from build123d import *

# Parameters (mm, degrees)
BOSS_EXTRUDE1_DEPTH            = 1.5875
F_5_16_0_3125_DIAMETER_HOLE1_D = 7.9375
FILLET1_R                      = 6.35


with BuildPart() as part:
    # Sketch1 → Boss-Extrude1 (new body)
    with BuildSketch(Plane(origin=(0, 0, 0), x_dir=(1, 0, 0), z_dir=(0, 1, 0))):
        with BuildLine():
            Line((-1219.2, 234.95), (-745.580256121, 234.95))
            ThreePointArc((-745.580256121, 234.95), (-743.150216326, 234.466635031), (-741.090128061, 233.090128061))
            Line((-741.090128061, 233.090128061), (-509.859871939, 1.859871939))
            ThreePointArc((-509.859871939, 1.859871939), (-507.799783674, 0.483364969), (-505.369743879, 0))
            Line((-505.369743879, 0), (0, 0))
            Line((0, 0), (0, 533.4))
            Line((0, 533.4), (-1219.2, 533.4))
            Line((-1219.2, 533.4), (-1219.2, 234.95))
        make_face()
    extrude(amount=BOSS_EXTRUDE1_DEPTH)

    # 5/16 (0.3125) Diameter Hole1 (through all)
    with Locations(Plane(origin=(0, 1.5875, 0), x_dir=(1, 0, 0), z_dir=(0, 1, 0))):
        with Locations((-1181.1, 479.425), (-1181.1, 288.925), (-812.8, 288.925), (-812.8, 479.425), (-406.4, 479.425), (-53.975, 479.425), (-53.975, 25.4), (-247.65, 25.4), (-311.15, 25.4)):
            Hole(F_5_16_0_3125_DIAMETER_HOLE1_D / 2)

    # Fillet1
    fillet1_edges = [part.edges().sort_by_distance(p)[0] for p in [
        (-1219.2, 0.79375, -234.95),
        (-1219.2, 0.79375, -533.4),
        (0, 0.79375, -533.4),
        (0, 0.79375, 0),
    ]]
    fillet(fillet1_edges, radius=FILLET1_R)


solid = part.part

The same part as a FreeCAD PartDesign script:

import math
import FreeCAD as App
import Part
import Sketcher
from FreeCAD import Vector
Q = App.Units.Quantity


def edges_at(feature, points):
    """Names of the edges that pass closest to the given points."""
    edges = feature.Shape.Edges
    near = lambda p: min(range(len(edges)), key=lambda i: edges[i].distToShape(Part.Vertex(*p))[0])
    return sorted({f"Edge{near(p) + 1}" for p in points})

doc = App.newDocument("Part")
params = doc.addObject("Spreadsheet::Sheet", "Params")
for row, (alias, value) in enumerate([
    ("sketch1_width", "48 in"),
    ("sketch1_height", "21 in"),
    ("sketch1_radius", "0.25 in"),
    ("pad1_length", "0.0625 in"),
    ("sketch2_diameter", "0.3125 in"),
    ("hole_diameter", "0.3125 in"),
    ("fillet_radius", "0.25 in"),
], start=1):
    params.set(f"A{row}", alias)
    params.set(f"B{row}", "=" + value)
    params.setAlias(f"B{row}", alias)

body = doc.addObject("PartDesign::Body", "Body")

# Sketch on XZ plane
sketch1 = doc.addObject("Sketcher::SketchObject", "Sketch")
body.addObject(sketch1)
sketch1.AttachmentSupport = (doc.XZ_Plane, [""])
sketch1.MapMode = "FlatFace"
sketch1.addGeometry(Part.LineSegment(Vector(-1219.2, -234.95, 0), Vector(-745.580256, -234.95, 0)), False)
sketch1.addGeometry(Part.ArcOfCircle(Part.Circle(Vector(-745.580256, -228.6, 0), Vector(0, 0, 1), 6.35), math.radians(-90), math.radians(-45)), False)
sketch1.addGeometry(Part.LineSegment(Vector(-741.090128, -233.090128, 0), Vector(-509.859872, -1.859872, 0)), False)
sketch1.addGeometry(Part.ArcOfCircle(Part.Circle(Vector(-505.369744, -6.35, 0), Vector(0, 0, 1), 6.35), math.radians(90), math.radians(135)), False)
sketch1.addGeometry(Part.LineSegment(Vector(-505.369744, 0, 0), Vector(0, 0, 0)), False)
sketch1.addGeometry(Part.LineSegment(Vector(0, 0, 0), Vector(0, -533.4, 0)), False)
sketch1.addGeometry(Part.LineSegment(Vector(0, -533.4, 0), Vector(-1219.2, -533.4, 0)), False)
sketch1.addGeometry(Part.LineSegment(Vector(-1219.2, -533.4, 0), Vector(-1219.2, -234.95, 0)), False)
sketch1.addConstraint(Sketcher.Constraint("Tangent", 0, 2, 1, 1))
sketch1.addConstraint(Sketcher.Constraint("Tangent", 1, 2, 2, 1))
sketch1.addConstraint(Sketcher.Constraint("Tangent", 2, 2, 3, 2))
sketch1.addConstraint(Sketcher.Constraint("Tangent", 3, 1, 4, 1))
sketch1.addConstraint(Sketcher.Constraint("Coincident", 4, 2, 5, 1))
sketch1.addConstraint(Sketcher.Constraint("Coincident", 5, 2, 6, 1))
sketch1.addConstraint(Sketcher.Constraint("Coincident", 6, 2, 7, 1))
sketch1.addConstraint(Sketcher.Constraint("Coincident", 7, 2, 0, 1))
sketch1.addConstraint(Sketcher.Constraint("Horizontal", 0))
sketch1.addConstraint(Sketcher.Constraint("Horizontal", 4))
sketch1.addConstraint(Sketcher.Constraint("Vertical", 5))
sketch1.addConstraint(Sketcher.Constraint("Horizontal", 6))
sketch1.addConstraint(Sketcher.Constraint("Vertical", 7))
sketch1.addConstraint(Sketcher.Constraint("Coincident", 4, 2, -1, 1))
sketch1.addConstraint(Sketcher.Constraint("Equal", 1, 3))
sketch1.addConstraint(Sketcher.Constraint("DistanceX", 6, 2, 6, 1, Q("48 in")))
sketch1.addConstraint(Sketcher.Constraint("DistanceY", 5, 2, 5, 1, Q("21 in")))
sketch1.addConstraint(Sketcher.Constraint("Radius", 1, Q("0.25 in")))
sketch1.addConstraint(Sketcher.Constraint("DistanceY", 1, 3, -1, 1, Q("9 in")))
sketch1.addConstraint(Sketcher.Constraint("Angle", 2, Q("45 deg")))
sketch1.addConstraint(Sketcher.Constraint("DistanceX", 0, 1, 0, 2, Q("473.619744 mm")))
sketch1.setExpression("Constraints[15]", "Params.sketch1_width")
sketch1.setExpression("Constraints[16]", "Params.sketch1_height")
sketch1.setExpression("Constraints[17]", "Params.sketch1_radius")
pad1 = doc.addObject("PartDesign::Pad", "Pad")
body.addObject(pad1)
pad1.Profile = sketch1
pad1.setExpression("Length", "Params.pad1_length")
pad1.Reversed = True

# Sketch on XZ plane
sketch2 = doc.addObject("Sketcher::SketchObject", "Sketch001")
body.addObject(sketch2)
sketch2.AttachmentSupport = (doc.XZ_Plane, [""])
sketch2.MapMode = "FlatFace"
sketch2.AttachmentOffset = App.Placement(Vector(0, 0, -0.0625 * 25.4), App.Rotation())
sketch2.addGeometry(Part.Circle(Vector(-1181.1, -479.425, 0), Vector(0, 0, 1), 3.96875), False)
sketch2.addGeometry(Part.Circle(Vector(-1181.1, -288.925, 0), Vector(0, 0, 1), 3.96875), False)
sketch2.addGeometry(Part.Circle(Vector(-812.8, -288.925, 0), Vector(0, 0, 1), 3.96875), False)
sketch2.addGeometry(Part.Circle(Vector(-812.8, -479.425, 0), Vector(0, 0, 1), 3.96875), False)
sketch2.addGeometry(Part.Circle(Vector(-406.4, -479.425, 0), Vector(0, 0, 1), 3.96875), False)
sketch2.addGeometry(Part.Circle(Vector(-53.975, -479.425, 0), Vector(0, 0, 1), 3.96875), False)
sketch2.addGeometry(Part.Circle(Vector(-53.975, -25.4, 0), Vector(0, 0, 1), 3.96875), False)
sketch2.addGeometry(Part.Circle(Vector(-247.65, -25.4, 0), Vector(0, 0, 1), 3.96875), False)
sketch2.addGeometry(Part.Circle(Vector(-311.15, -25.4, 0), Vector(0, 0, 1), 3.96875), False)
sketch2.addConstraint(Sketcher.Constraint("Equal", 0, 1))
sketch2.addConstraint(Sketcher.Constraint("Equal", 1, 2))
sketch2.addConstraint(Sketcher.Constraint("Equal", 2, 3))
sketch2.addConstraint(Sketcher.Constraint("Equal", 3, 4))
sketch2.addConstraint(Sketcher.Constraint("Equal", 4, 5))
sketch2.addConstraint(Sketcher.Constraint("Equal", 5, 6))
sketch2.addConstraint(Sketcher.Constraint("Equal", 6, 7))
sketch2.addConstraint(Sketcher.Constraint("Equal", 7, 8))
sketch2.addConstraint(Sketcher.Constraint("Horizontal", 1, 3, 2, 3))
sketch2.addConstraint(Sketcher.Constraint("Horizontal", 0, 3, 3, 3))
sketch2.addConstraint(Sketcher.Constraint("Horizontal", 3, 3, 4, 3))
sketch2.addConstraint(Sketcher.Constraint("Horizontal", 4, 3, 5, 3))
sketch2.addConstraint(Sketcher.Constraint("Horizontal", 6, 3, 7, 3))
sketch2.addConstraint(Sketcher.Constraint("Horizontal", 7, 3, 8, 3))
sketch2.addConstraint(Sketcher.Constraint("Vertical", 0, 3, 1, 3))
sketch2.addConstraint(Sketcher.Constraint("Vertical", 2, 3, 3, 3))
sketch2.addConstraint(Sketcher.Constraint("Vertical", 5, 3, 6, 3))
sketch2.addConstraint(Sketcher.Constraint("Diameter", 0, Q("0.3125 in")))
sketch2.addConstraint(Sketcher.Constraint("DistanceX", 2, 3, -1, 1, Q("32 in")))
sketch2.addConstraint(Sketcher.Constraint("DistanceX", 4, 3, -1, 1, Q("16 in")))
sketch2.addConstraint(Sketcher.Constraint("DistanceY", 6, 3, -1, 1, Q("1 in")))
sketch2.addConstraint(Sketcher.Constraint("DistanceX", 0, 3, -1, 1, Q("46.5 in")))
sketch2.addConstraint(Sketcher.Constraint("DistanceY", 0, 3, 1, 3, Q("7.5 in")))
sketch2.addConstraint(Sketcher.Constraint("DistanceX", 8, 3, 7, 3, Q("2.5 in")))
sketch2.addConstraint(Sketcher.Constraint("DistanceX", 7, 3, -1, 1, Q("9.75 in")))
sketch2.addConstraint(Sketcher.Constraint("DistanceY", 0, 3, -1, 1, Q("18.875 in")))
sketch2.addConstraint(Sketcher.Constraint("DistanceX", 5, 3, -1, 1, Q("2.125 in")))
sketch2.setExpression("Constraints[17]", "Params.sketch2_diameter")
doc.recompute()
hole = doc.addObject("PartDesign::Hole", "Hole")
body.addObject(hole)
hole.Profile = sketch2
hole.ThreadType = "None"
hole.setExpression("Diameter", "Params.hole_diameter")
hole.DepthType = "ThroughAll"
hole.Reversed = True
doc.recompute()

fillet = doc.addObject("PartDesign::Fillet", "Fillet")
body.addObject(fillet)
fillet.Base = (hole, edges_at(hole, [
    (-1219.2, 0.794, -234.95),
    (-1219.2, 0.794, -533.4),
    (0, 0.794, -533.4),
    (0, 0.794, 0),
]))
fillet.setExpression("Radius", "Params.fillet_radius")

doc.recompute()
